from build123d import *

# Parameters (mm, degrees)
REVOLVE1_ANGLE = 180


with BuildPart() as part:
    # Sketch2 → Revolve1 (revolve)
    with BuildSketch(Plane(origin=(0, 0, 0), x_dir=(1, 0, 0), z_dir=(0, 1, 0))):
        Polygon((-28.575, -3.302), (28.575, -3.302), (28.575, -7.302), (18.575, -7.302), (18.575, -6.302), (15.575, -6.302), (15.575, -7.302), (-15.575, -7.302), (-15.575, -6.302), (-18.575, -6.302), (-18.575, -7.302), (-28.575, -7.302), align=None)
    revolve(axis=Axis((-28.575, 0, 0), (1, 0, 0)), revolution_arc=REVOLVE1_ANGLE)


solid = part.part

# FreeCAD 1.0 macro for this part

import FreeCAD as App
import Part
import Sketcher
from FreeCAD import Vector

doc = App.newDocument("Part")
params = doc.addObject("Spreadsheet::Sheet", "Params")
for row, (alias, value) in enumerate([
    ("sketch1_width", "10 mm"),
    ("sketch1_width2", "3 mm"),
    ("sketch1_height", "4 mm"),
    ("sketch1_height2", "1 mm"),
    ("sketch1_width3", "57.15 mm"),
    ("revolution_angle", "180 deg"),
], start=1):
    params.set(f"A{row}", alias)
    params.set(f"B{row}", "=" + value)
    params.setAlias(f"B{row}", alias)

body = doc.addObject("PartDesign::Body", "Body")

sketch1 = body.newObject("Sketcher::SketchObject", "Sketch")
sketch1.AttachmentSupport = (doc.getObject("XZ_Plane"), [""])
sketch1.MapMode = "FlatFace"
sketch1.addGeometry([
    Part.LineSegment(Vector(28.575, 3.302, 0), Vector(-28.575, 3.302, 0)),
    Part.LineSegment(Vector(-28.575, 3.302, 0), Vector(-28.575, 7.302, 0)),
    Part.LineSegment(Vector(-28.575, 7.302, 0), Vector(-18.575, 7.302, 0)),
    Part.LineSegment(Vector(-18.575, 7.302, 0), Vector(-18.575, 6.302, 0)),
    Part.LineSegment(Vector(-18.575, 6.302, 0), Vector(-15.575, 6.302, 0)),
    Part.LineSegment(Vector(-15.575, 6.302, 0), Vector(-15.575, 7.302, 0)),
    Part.LineSegment(Vector(-15.575, 7.302, 0), Vector(15.575, 7.302, 0)),
    Part.LineSegment(Vector(15.575, 7.302, 0), Vector(15.575, 6.302, 0)),
    Part.LineSegment(Vector(15.575, 6.302, 0), Vector(18.575, 6.302, 0)),
    Part.LineSegment(Vector(18.575, 6.302, 0), Vector(18.575, 7.302, 0)),
    Part.LineSegment(Vector(18.575, 7.302, 0), Vector(28.575, 7.302, 0)),
    Part.LineSegment(Vector(28.575, 7.302, 0), Vector(28.575, 3.302, 0)),
], False)
sketch1.addConstraint([
    Sketcher.Constraint("Coincident", 0, 2, 1, 1),
    Sketcher.Constraint("Coincident", 1, 2, 2, 1),
    Sketcher.Constraint("Coincident", 2, 2, 3, 1),
    Sketcher.Constraint("Coincident", 3, 2, 4, 1),
    Sketcher.Constraint("Coincident", 4, 2, 5, 1),
    Sketcher.Constraint("Coincident", 5, 2, 6, 1),
    Sketcher.Constraint("Coincident", 6, 2, 7, 1),
    Sketcher.Constraint("Coincident", 7, 2, 8, 1),
    Sketcher.Constraint("Coincident", 8, 2, 9, 1),
    Sketcher.Constraint("Coincident", 9, 2, 10, 1),
    Sketcher.Constraint("Coincident", 10, 2, 11, 1),
    Sketcher.Constraint("Coincident", 11, 2, 0, 1),
    Sketcher.Constraint("Horizontal", 0),
    Sketcher.Constraint("Vertical", 1),
    Sketcher.Constraint("Horizontal", 2),
    Sketcher.Constraint("Vertical", 3),
    Sketcher.Constraint("Horizontal", 4),
    Sketcher.Constraint("Vertical", 5),
    Sketcher.Constraint("Horizontal", 6),
    Sketcher.Constraint("Vertical", 7),
    Sketcher.Constraint("Horizontal", 8),
    Sketcher.Constraint("Vertical", 9),
    Sketcher.Constraint("Horizontal", 10),
    Sketcher.Constraint("Vertical", 11),
    Sketcher.Constraint("Symmetric", 4, 2, 7, 2, -2),
    Sketcher.Constraint("Symmetric", 2, 2, 9, 2, -2),
    Sketcher.Constraint("Horizontal", 2, 2, 5, 2),
    Sketcher.Constraint("Equal", 2, 10),
    Sketcher.Constraint("DistanceX", 2, 1, 2, 2, 10.0),
    Sketcher.Constraint("DistanceX", 4, 1, 4, 2, 3.0),
    Sketcher.Constraint("DistanceY", 1, 1, 1, 2, 4.0),
    Sketcher.Constraint("DistanceY", 3, 2, 3, 1, 1.0),
    Sketcher.Constraint("DistanceX", 0, 2, 0, 1, 57.15),
    Sketcher.Constraint("DistanceY", -1, 1, 0, 2, 3.302),
])
sketch1.setExpression("Constraints[28]", "Params.sketch1_width")
sketch1.setExpression("Constraints[29]", "Params.sketch1_width2")
sketch1.setExpression("Constraints[30]", "Params.sketch1_height")
sketch1.setExpression("Constraints[31]", "Params.sketch1_height2")
sketch1.setExpression("Constraints[32]", "Params.sketch1_width3")
revolution = body.newObject("PartDesign::Revolution", "Revolution")
revolution.Profile = sketch1
revolution.ReferenceAxis = (sketch1, ["H_Axis"])
revolution.setExpression("Angle", "Params.revolution_angle")

doc.recompute()
